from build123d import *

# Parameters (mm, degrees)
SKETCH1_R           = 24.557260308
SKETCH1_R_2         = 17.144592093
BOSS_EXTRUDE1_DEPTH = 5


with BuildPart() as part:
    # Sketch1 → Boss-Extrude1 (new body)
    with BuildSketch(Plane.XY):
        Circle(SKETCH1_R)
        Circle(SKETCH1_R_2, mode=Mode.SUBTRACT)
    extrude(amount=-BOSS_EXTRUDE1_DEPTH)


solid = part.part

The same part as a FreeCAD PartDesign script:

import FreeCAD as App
import Part
import Sketcher
Q = App.Units.Quantity

doc = App.newDocument("Part")
params = doc.addObject("Spreadsheet::Sheet", "Params")
for row, (alias, value) in enumerate([
    ("pad1_length", "5 mm"),
], start=1):
    params.set(f"A{row}", alias)
    params.set(f"B{row}", "=" + value)
    params.setAlias(f"B{row}", alias)

body = doc.addObject("PartDesign::Body", "Body")

# Sketch on XY plane
sketch1 = body.newObject("Sketcher::SketchObject", "Sketch")
sketch1.AttachmentSupport = (doc.getObject("XY_Plane"), [""])
sketch1.MapMode = "FlatFace"
sketch1.addGeometry([
    Part.Circle(App.Vector(0, 0, 0), App.Vector(0, 0, 1), 25),
    Part.Circle(App.Vector(0, 0, 0), App.Vector(0, 0, 1), 17),
], False)
sketch1.addConstraint([
    Sketcher.Constraint("Coincident", 0, 3, -1, 1),
    Sketcher.Constraint("Coincident", 1, 3, -1, 1),
    Sketcher.Constraint("Diameter", 0, Q("49.114521 mm")),
    Sketcher.Constraint("Diameter", 1, Q("34.289184 mm")),
])
pad1 = body.newObject("PartDesign::Pad", "Pad")
pad1.Profile = sketch1
pad1.setExpression("Length", "Params.pad1_length")
pad1.Reversed = True

doc.recompute()
